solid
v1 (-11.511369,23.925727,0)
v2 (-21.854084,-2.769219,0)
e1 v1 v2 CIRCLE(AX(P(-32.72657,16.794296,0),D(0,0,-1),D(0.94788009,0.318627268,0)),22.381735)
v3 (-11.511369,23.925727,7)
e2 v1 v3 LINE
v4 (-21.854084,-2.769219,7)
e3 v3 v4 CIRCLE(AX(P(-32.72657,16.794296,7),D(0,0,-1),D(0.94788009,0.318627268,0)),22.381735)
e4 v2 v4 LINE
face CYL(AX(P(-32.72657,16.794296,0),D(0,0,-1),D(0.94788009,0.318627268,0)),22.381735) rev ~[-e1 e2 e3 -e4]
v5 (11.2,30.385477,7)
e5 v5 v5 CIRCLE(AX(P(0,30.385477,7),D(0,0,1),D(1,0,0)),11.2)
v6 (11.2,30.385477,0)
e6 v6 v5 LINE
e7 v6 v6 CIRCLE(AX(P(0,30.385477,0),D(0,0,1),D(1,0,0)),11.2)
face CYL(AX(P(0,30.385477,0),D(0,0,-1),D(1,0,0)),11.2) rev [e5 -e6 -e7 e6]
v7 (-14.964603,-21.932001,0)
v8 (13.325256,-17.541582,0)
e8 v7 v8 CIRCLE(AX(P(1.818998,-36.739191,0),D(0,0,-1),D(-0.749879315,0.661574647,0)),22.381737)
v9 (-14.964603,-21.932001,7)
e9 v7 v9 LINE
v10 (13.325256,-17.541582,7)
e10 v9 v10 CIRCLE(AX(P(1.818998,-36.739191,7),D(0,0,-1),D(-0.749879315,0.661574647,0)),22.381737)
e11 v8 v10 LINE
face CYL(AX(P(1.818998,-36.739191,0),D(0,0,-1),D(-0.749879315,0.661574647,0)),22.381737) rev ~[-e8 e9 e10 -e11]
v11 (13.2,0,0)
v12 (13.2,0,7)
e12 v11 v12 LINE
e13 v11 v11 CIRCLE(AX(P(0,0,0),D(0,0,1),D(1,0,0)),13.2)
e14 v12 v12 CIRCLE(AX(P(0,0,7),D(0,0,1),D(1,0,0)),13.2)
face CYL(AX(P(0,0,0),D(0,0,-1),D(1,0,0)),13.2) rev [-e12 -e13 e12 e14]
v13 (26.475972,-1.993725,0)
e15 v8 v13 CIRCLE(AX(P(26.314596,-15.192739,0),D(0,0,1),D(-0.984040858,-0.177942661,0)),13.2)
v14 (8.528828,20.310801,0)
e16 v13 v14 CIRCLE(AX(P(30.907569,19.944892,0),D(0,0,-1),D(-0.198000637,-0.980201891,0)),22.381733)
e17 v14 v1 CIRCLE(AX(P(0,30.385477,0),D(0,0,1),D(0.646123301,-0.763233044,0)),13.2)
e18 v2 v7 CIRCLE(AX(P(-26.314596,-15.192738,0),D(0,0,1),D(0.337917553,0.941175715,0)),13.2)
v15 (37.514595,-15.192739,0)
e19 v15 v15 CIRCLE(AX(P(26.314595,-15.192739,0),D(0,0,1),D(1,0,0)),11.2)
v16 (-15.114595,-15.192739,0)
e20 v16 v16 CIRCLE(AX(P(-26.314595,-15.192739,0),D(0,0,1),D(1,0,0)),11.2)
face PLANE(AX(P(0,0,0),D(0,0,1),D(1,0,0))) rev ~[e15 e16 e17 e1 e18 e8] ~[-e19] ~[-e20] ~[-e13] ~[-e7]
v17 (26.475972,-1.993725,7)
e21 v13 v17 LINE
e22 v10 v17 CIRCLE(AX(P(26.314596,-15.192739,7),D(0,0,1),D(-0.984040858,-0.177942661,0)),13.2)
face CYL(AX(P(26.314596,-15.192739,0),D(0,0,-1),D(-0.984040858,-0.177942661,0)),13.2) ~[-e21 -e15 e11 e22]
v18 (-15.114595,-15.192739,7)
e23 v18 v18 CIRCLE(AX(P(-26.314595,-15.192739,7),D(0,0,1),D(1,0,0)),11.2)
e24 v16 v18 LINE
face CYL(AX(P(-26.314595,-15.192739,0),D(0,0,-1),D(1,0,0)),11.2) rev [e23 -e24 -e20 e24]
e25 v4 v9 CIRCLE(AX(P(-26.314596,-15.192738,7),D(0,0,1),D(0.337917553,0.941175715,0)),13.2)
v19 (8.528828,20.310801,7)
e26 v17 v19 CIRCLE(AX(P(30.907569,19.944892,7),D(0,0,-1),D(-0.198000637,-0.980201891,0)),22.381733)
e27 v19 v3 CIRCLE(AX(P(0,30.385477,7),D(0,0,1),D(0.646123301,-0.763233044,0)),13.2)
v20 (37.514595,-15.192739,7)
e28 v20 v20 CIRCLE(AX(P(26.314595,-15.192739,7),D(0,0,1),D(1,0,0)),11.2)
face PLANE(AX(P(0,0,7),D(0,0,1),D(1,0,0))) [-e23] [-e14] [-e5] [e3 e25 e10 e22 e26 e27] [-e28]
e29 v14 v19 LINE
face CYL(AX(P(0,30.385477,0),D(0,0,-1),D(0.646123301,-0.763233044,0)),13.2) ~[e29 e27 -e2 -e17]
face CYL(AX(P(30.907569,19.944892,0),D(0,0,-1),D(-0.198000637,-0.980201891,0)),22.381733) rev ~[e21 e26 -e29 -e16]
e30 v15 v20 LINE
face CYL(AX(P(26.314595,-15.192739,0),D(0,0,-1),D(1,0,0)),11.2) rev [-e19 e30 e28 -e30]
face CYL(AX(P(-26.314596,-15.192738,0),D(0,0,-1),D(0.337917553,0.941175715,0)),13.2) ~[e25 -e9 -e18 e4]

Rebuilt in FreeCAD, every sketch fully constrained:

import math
import FreeCAD as App
import Part
import Sketcher
from FreeCAD import Vector

doc = App.newDocument("Part")
body = doc.addObject("PartDesign::Body", "Body")

# Sketch on XY plane
sketch1 = doc.addObject("Sketcher::SketchObject", "Sketch")
body.addObject(sketch1)
sketch1.AttachmentSupport = (doc.XY_Plane, [""])
sketch1.MapMode = "FlatFace"
sketch1.addGeometry([
    Part.ArcOfCircle(Part.Circle(Vector(31, 20, 0), Vector(0, 0, 1), 22), math.radians(179), math.radians(259)),  # 0
    Part.ArcOfCircle(Part.Circle(Vector(0, 30, 0), Vector(0, 0, 1), 13), math.radians(-50), math.radians(209)),  # 1
    Part.ArcOfCircle(Part.Circle(Vector(-33, 17, 0), Vector(0, 0, 1), 22), math.radians(-61), math.radians(19)),  # 2
    Part.ArcOfCircle(Part.Circle(Vector(-26, -15, 0), Vector(0, 0, 1), 13), math.radians(70), math.radians(329)),  # 3
    Part.ArcOfCircle(Part.Circle(Vector(2, -37, 0), Vector(0, 0, 1), 22), math.radians(59), math.radians(139)),  # 4
    Part.ArcOfCircle(Part.Circle(Vector(26, -15, 0), Vector(0, 0, 1), 13), math.radians(-170), math.radians(89)),  # 5
    Part.Circle(Vector(-26, -15, 0), Vector(0, 0, 1), 11),  # 6
    Part.Circle(Vector(26, -15, 0), Vector(0, 0, 1), 11),  # 7
    Part.Circle(Vector(0, 0, 0), Vector(0, 0, 1), 13),  # 8
    Part.Circle(Vector(0, 30, 0), Vector(0, 0, 1), 11),  # 9
], False)
sketch1.addConstraint([
    Sketcher.Constraint("Coincident", 0, 1, 1, 1),
    Sketcher.Constraint("Coincident", 1, 2, 2, 2),
    Sketcher.Constraint("Coincident", 2, 1, 3, 1),
    Sketcher.Constraint("Coincident", 3, 2, 4, 2),
    Sketcher.Constraint("Coincident", 4, 1, 5, 1),
    Sketcher.Constraint("Coincident", 5, 2, 0, 2),
    Sketcher.Constraint("Coincident", 8, 3, -1, 1),
    Sketcher.Constraint("Coincident", 6, 3, 3, 3),
    Sketcher.Constraint("Coincident", 7, 3, 5, 3),
    Sketcher.Constraint("Coincident", 9, 3, 1, 3),
    Sketcher.Constraint("Equal", 1, 3),
    Sketcher.Constraint("Equal", 2, 4),
    Sketcher.Constraint("Equal", 3, 5),
    Sketcher.Constraint("Equal", 6, 7),
    Sketcher.Constraint("Equal", 5, 8),
    Sketcher.Constraint("Equal", 7, 9),
    Sketcher.Constraint("Symmetric", 3, 3, 5, 3, -2),
    Sketcher.Constraint("PointOnObject", 1, 3, -2),
    Sketcher.Constraint("Diameter", 6, 22.4),
    Sketcher.Constraint("Diameter", 8, 26.4),
    Sketcher.Constraint("DistanceX", -1, 1, 4, 3, 1.818998),
    Sketcher.Constraint("DistanceY", 3, 2, -1, 1, 21.932001),
    Sketcher.Constraint("Radius", 0, 22.381733),
    Sketcher.Constraint("Radius", 2, 22.381735),
    Sketcher.Constraint("DistanceY", -1, 1, 0, 1, 20.310801),
    Sketcher.Constraint("DistanceX", 2, 3, 1, 2, 21.215201),
    Sketcher.Constraint("DistanceX", 3, 2, 4, 3, 16.783601),
    Sketcher.Constraint("DistanceX", -1, 1, 0, 3, 30.907569),
    Sketcher.Constraint("DistanceY", -1, 1, 0, 3, 19.944892),
    Sketcher.Constraint("DistanceX", 2, 3, -1, 1, 32.72657),
    Sketcher.Constraint("DistanceY", 3, 3, -1, 1, 15.192738),
])
pad1 = doc.addObject("PartDesign::Pad", "Pad")
body.addObject(pad1)
pad1.Profile = sketch1
pad1.Length = 7

doc.recompute()
